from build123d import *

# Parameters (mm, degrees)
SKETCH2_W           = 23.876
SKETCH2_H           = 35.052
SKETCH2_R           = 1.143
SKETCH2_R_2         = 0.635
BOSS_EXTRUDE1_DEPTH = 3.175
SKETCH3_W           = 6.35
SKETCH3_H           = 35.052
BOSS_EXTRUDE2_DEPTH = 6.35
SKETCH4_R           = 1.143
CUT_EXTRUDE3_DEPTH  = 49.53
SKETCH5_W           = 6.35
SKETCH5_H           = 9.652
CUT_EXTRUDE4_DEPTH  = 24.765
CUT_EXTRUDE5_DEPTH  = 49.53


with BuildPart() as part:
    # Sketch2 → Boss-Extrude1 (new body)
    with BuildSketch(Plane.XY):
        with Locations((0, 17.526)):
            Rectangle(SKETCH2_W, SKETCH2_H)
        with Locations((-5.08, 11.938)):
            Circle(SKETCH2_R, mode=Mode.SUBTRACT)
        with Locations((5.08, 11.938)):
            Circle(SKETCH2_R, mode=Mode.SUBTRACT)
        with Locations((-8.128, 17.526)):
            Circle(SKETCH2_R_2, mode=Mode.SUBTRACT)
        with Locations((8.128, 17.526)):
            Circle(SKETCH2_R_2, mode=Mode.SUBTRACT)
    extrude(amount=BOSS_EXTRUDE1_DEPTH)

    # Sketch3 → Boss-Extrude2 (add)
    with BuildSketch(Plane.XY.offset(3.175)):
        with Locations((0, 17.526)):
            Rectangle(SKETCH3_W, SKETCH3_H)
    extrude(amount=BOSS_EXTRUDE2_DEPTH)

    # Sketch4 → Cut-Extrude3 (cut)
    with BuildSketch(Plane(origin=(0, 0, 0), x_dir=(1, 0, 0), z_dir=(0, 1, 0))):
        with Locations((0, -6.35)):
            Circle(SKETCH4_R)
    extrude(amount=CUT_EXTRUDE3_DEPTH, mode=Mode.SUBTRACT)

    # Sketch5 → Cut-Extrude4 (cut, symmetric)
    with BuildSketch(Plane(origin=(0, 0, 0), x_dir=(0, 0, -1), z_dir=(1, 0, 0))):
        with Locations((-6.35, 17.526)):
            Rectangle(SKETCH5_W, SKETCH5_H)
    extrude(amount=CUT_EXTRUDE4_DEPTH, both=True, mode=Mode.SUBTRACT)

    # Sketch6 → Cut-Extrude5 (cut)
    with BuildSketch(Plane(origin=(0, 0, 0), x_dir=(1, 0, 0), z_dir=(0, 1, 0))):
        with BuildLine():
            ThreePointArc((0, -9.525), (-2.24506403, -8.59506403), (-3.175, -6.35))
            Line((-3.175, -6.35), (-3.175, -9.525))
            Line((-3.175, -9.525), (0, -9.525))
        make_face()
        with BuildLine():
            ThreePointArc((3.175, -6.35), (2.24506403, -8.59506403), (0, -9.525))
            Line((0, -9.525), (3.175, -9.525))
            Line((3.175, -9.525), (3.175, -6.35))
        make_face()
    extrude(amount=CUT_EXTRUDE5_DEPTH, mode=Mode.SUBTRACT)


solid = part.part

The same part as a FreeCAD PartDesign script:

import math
import FreeCAD as App
import Part
import Sketcher

V = App.Vector
Q = App.Units.Quantity

doc = App.newDocument("Part")
body = doc.addObject("PartDesign::Body", "Body")

# Sketch on XY plane
sketch1 = body.newObject("Sketcher::SketchObject", "Sketch")
sketch1.AttachmentSupport = (doc.getObject("XY_Plane"), [""])
sketch1.MapMode = "FlatFace"
sketch1.addGeometry(Part.LineSegment(V(-11.938, 35.052, 0), V(-11.938, 0, 0)), False)
sketch1.addGeometry(Part.LineSegment(V(-11.938, 0, 0), V(11.938, 0, 0)), False)
sketch1.addGeometry(Part.LineSegment(V(11.938, 0, 0), V(11.938, 35.052, 0)), False)
sketch1.addGeometry(Part.LineSegment(V(11.938, 35.052, 0), V(-11.938, 35.052, 0)), False)
sketch1.addGeometry(Part.Circle(V(-5.08, 11.938, 0), V(0, 0, 1), 1.143), False)
sketch1.addGeometry(Part.Circle(V(5.08, 11.938, 0), V(0, 0, 1), 1.143), False)
sketch1.addGeometry(Part.Circle(V(-8.128, 17.526, 0), V(0, 0, 1), 0.635), False)
sketch1.addGeometry(Part.Circle(V(8.128, 17.526, 0), V(0, 0, 1), 0.635), False)
sketch1.addConstraint(Sketcher.Constraint("Coincident", 0, 2, 1, 1))
sketch1.addConstraint(Sketcher.Constraint("Coincident", 1, 2, 2, 1))
sketch1.addConstraint(Sketcher.Constraint("Coincident", 2, 2, 3, 1))
sketch1.addConstraint(Sketcher.Constraint("Coincident", 3, 2, 0, 1))
sketch1.addConstraint(Sketcher.Constraint("Vertical", 0))
sketch1.addConstraint(Sketcher.Constraint("Horizontal", 1))
sketch1.addConstraint(Sketcher.Constraint("Vertical", 2))
sketch1.addConstraint(Sketcher.Constraint("Horizontal", 3))
sketch1.addConstraint(Sketcher.Constraint("Equal", 4, 5))
sketch1.addConstraint(Sketcher.Constraint("Equal", 6, 7))
sketch1.addConstraint(Sketcher.Constraint("Symmetric", 0, 2, 1, 2, -1, 1))
sketch1.addConstraint(Sketcher.Constraint("Symmetric", 4, 3, 5, 3, -2))
sketch1.addConstraint(Sketcher.Constraint("Symmetric", 6, 3, 7, 3, -2))
sketch1.addConstraint(Sketcher.Constraint("Diameter", 4, Q("0.09 in")))
sketch1.addConstraint(Sketcher.Constraint("Diameter", 6, Q("0.05 in")))
sketch1.addConstraint(Sketcher.Constraint("DistanceX", 1, 1, 1, 2, Q("0.94 in")))
sketch1.addConstraint(Sketcher.Constraint("DistanceY", 0, 2, 0, 1, Q("1.38 in")))
sketch1.addConstraint(Sketcher.Constraint("DistanceX", 4, 3, -1, 1, Q("0.2 in")))
sketch1.addConstraint(Sketcher.Constraint("DistanceY", -1, 1, 4, 3, Q("0.47 in")))
sketch1.addConstraint(Sketcher.Constraint("DistanceX", 6, 3, -1, 1, Q("0.32 in")))
sketch1.addConstraint(Sketcher.Constraint("DistanceY", -1, 1, 6, 3, Q("0.69 in")))
pad1 = body.newObject("PartDesign::Pad", "Pad")
pad1.Profile = sketch1
pad1.Length = Q("0.125 in")

# Sketch on XY plane
sketch2 = body.newObject("Sketcher::SketchObject", "Sketch001")
sketch2.AttachmentSupport = (doc.getObject("XY_Plane"), [""])
sketch2.MapMode = "FlatFace"
sketch2.AttachmentOffset = App.Placement(V(0, 0, 0.125 * 25.4), App.Rotation())
sketch2.addGeometry(Part.LineSegment(V(-3.175, 35.052, 0), V(-3.175, 0, 0)), False)
sketch2.addGeometry(Part.LineSegment(V(-3.175, 0, 0), V(3.175, 0, 0)), False)
sketch2.addGeometry(Part.LineSegment(V(3.175, 0, 0), V(3.175, 35.052, 0)), False)
sketch2.addGeometry(Part.LineSegment(V(3.175, 35.052, 0), V(-3.175, 35.052, 0)), False)
sketch2.addConstraint(Sketcher.Constraint("Coincident", 0, 2, 1, 1))
sketch2.addConstraint(Sketcher.Constraint("Coincident", 1, 2, 2, 1))
sketch2.addConstraint(Sketcher.Constraint("Coincident", 2, 2, 3, 1))
sketch2.addConstraint(Sketcher.Constraint("Coincident", 3, 2, 0, 1))
sketch2.addConstraint(Sketcher.Constraint("Vertical", 0))
sketch2.addConstraint(Sketcher.Constraint("Horizontal", 1))
sketch2.addConstraint(Sketcher.Constraint("Vertical", 2))
sketch2.addConstraint(Sketcher.Constraint("Horizontal", 3))
sketch2.addConstraint(Sketcher.Constraint("Symmetric", 0, 2, 1, 2, -1, 1))
sketch2.addConstraint(Sketcher.Constraint("DistanceX", 1, 1, 1, 2, Q("0.25 in")))
sketch2.addConstraint(Sketcher.Constraint("DistanceY", 0, 2, 0, 1, Q("1.38 in")))
pad2 = body.newObject("PartDesign::Pad", "Pad001")
pad2.Profile = sketch2
pad2.Length = Q("0.25 in")

# Sketch on XZ plane
sketch3 = body.newObject("Sketcher::SketchObject", "Sketch002")
sketch3.AttachmentSupport = (doc.getObject("XZ_Plane"), [""])
sketch3.MapMode = "FlatFace"
sketch3.addGeometry(Part.Circle(V(0, 6.35, 0), V(0, 0, 1), 1.143), False)
sketch3.addConstraint(Sketcher.Constraint("PointOnObject", 0, 3, -2))
sketch3.addConstraint(Sketcher.Constraint("Diameter", 0, Q("0.09 in")))
sketch3.addConstraint(Sketcher.Constraint("DistanceY", -1, 1, 0, 3, Q("0.25 in")))
pocket1 = body.newObject("PartDesign::Pocket", "Pocket")
pocket1.Profile = sketch3
pocket1.Length = Q("1.95 in")

# Sketch on YZ plane
sketch4 = body.newObject("Sketcher::SketchObject", "Sketch003")
sketch4.AttachmentSupport = (doc.getObject("YZ_Plane"), [""])
sketch4.MapMode = "FlatFace"
sketch4.addGeometry(Part.LineSegment(V(22.352, 9.525, 0), V(12.7, 9.525, 0)), False)
sketch4.addGeometry(Part.LineSegment(V(12.7, 9.525, 0), V(12.7, 3.175, 0)), False)
sketch4.addGeometry(Part.LineSegment(V(12.7, 3.175, 0), V(22.352, 3.175, 0)), False)
sketch4.addGeometry(Part.LineSegment(V(22.352, 3.175, 0), V(22.352, 9.525, 0)), False)
sketch4.addConstraint(Sketcher.Constraint("Coincident", 0, 2, 1, 1))
sketch4.addConstraint(Sketcher.Constraint("Coincident", 1, 2, 2, 1))
sketch4.addConstraint(Sketcher.Constraint("Coincident", 2, 2, 3, 1))
sketch4.addConstraint(Sketcher.Constraint("Coincident", 3, 2, 0, 1))
sketch4.addConstraint(Sketcher.Constraint("Horizontal", 0))
sketch4.addConstraint(Sketcher.Constraint("Vertical", 1))
sketch4.addConstraint(Sketcher.Constraint("Horizontal", 2))
sketch4.addConstraint(Sketcher.Constraint("Vertical", 3))
sketch4.addConstraint(Sketcher.Constraint("DistanceX", 0, 2, 0, 1, Q("0.38 in")))
sketch4.addConstraint(Sketcher.Constraint("DistanceY", 1, 2, 1, 1, Q("0.25 in")))
sketch4.addConstraint(Sketcher.Constraint("DistanceX", -1, 1, 0, 2, Q("0.5 in")))
sketch4.addConstraint(Sketcher.Constraint("DistanceY", -1, 1, 0, 2, Q("0.375 in")))
pocket2 = body.newObject("PartDesign::Pocket", "Pocket001")
pocket2.Profile = sketch4
pocket2.Length = Q("1.95 in")
pocket2.Midplane = True

# Sketch on XZ plane
sketch5 = body.newObject("Sketcher::SketchObject", "Sketch004")
sketch5.AttachmentSupport = (doc.getObject("XZ_Plane"), [""])
sketch5.MapMode = "FlatFace"
sketch5.addGeometry(Part.ArcOfCircle(Part.Circle(V(0, 6.35, 0), V(0, 0, 1), 3.175), math.radians(90), math.radians(180)), False)
sketch5.addGeometry(Part.LineSegment(V(-3.175, 6.35, 0), V(-3.175, 9.525, 0)), False)
sketch5.addGeometry(Part.LineSegment(V(-3.175, 9.525, 0), V(0, 9.525, 0)), False)
sketch5.addGeometry(Part.ArcOfCircle(Part.Circle(V(0, 6.35, 0), V(0, 0, 1), 3.175), math.radians(0), math.radians(90)), False)
sketch5.addGeometry(Part.LineSegment(V(0, 9.525, 0), V(3.175, 9.525, 0)), False)
sketch5.addGeometry(Part.LineSegment(V(3.175, 9.525, 0), V(3.175, 6.35, 0)), False)
sketch5.addConstraint(Sketcher.Constraint("Tangent", 0, 2, 1, 1))
sketch5.addConstraint(Sketcher.Constraint("Coincident", 1, 2, 2, 1))
sketch5.addConstraint(Sketcher.Constraint("Tangent", 2, 2, 0, 1))
sketch5.addConstraint(Sketcher.Constraint("Tangent", 3, 2, 4, 1))
sketch5.addConstraint(Sketcher.Constraint("Coincident", 4, 2, 5, 1))
sketch5.addConstraint(Sketcher.Constraint("Tangent", 5, 2, 3, 1))
sketch5.addConstraint(Sketcher.Constraint("Vertical", 1))
sketch5.addConstraint(Sketcher.Constraint("Horizontal", 2))
sketch5.addConstraint(Sketcher.Constraint("Horizontal", 4))
sketch5.addConstraint(Sketcher.Constraint("Vertical", 5))
sketch5.addConstraint(Sketcher.Constraint("Coincident", 3, 3, 0, 3))
sketch5.addConstraint(Sketcher.Constraint("Equal", 0, 3))
sketch5.addConstraint(Sketcher.Constraint("PointOnObject", 0, 3, -2))
sketch5.addConstraint(Sketcher.Constraint("Radius", 0, Q("0.125 in")))
sketch5.addConstraint(Sketcher.Constraint("DistanceY", -1, 1, 0, 3, Q("0.25 in")))
pocket3 = body.newObject("PartDesign::Pocket", "Pocket002")
pocket3.Profile = sketch5
pocket3.Length = Q("1.95 in")

doc.recompute()
